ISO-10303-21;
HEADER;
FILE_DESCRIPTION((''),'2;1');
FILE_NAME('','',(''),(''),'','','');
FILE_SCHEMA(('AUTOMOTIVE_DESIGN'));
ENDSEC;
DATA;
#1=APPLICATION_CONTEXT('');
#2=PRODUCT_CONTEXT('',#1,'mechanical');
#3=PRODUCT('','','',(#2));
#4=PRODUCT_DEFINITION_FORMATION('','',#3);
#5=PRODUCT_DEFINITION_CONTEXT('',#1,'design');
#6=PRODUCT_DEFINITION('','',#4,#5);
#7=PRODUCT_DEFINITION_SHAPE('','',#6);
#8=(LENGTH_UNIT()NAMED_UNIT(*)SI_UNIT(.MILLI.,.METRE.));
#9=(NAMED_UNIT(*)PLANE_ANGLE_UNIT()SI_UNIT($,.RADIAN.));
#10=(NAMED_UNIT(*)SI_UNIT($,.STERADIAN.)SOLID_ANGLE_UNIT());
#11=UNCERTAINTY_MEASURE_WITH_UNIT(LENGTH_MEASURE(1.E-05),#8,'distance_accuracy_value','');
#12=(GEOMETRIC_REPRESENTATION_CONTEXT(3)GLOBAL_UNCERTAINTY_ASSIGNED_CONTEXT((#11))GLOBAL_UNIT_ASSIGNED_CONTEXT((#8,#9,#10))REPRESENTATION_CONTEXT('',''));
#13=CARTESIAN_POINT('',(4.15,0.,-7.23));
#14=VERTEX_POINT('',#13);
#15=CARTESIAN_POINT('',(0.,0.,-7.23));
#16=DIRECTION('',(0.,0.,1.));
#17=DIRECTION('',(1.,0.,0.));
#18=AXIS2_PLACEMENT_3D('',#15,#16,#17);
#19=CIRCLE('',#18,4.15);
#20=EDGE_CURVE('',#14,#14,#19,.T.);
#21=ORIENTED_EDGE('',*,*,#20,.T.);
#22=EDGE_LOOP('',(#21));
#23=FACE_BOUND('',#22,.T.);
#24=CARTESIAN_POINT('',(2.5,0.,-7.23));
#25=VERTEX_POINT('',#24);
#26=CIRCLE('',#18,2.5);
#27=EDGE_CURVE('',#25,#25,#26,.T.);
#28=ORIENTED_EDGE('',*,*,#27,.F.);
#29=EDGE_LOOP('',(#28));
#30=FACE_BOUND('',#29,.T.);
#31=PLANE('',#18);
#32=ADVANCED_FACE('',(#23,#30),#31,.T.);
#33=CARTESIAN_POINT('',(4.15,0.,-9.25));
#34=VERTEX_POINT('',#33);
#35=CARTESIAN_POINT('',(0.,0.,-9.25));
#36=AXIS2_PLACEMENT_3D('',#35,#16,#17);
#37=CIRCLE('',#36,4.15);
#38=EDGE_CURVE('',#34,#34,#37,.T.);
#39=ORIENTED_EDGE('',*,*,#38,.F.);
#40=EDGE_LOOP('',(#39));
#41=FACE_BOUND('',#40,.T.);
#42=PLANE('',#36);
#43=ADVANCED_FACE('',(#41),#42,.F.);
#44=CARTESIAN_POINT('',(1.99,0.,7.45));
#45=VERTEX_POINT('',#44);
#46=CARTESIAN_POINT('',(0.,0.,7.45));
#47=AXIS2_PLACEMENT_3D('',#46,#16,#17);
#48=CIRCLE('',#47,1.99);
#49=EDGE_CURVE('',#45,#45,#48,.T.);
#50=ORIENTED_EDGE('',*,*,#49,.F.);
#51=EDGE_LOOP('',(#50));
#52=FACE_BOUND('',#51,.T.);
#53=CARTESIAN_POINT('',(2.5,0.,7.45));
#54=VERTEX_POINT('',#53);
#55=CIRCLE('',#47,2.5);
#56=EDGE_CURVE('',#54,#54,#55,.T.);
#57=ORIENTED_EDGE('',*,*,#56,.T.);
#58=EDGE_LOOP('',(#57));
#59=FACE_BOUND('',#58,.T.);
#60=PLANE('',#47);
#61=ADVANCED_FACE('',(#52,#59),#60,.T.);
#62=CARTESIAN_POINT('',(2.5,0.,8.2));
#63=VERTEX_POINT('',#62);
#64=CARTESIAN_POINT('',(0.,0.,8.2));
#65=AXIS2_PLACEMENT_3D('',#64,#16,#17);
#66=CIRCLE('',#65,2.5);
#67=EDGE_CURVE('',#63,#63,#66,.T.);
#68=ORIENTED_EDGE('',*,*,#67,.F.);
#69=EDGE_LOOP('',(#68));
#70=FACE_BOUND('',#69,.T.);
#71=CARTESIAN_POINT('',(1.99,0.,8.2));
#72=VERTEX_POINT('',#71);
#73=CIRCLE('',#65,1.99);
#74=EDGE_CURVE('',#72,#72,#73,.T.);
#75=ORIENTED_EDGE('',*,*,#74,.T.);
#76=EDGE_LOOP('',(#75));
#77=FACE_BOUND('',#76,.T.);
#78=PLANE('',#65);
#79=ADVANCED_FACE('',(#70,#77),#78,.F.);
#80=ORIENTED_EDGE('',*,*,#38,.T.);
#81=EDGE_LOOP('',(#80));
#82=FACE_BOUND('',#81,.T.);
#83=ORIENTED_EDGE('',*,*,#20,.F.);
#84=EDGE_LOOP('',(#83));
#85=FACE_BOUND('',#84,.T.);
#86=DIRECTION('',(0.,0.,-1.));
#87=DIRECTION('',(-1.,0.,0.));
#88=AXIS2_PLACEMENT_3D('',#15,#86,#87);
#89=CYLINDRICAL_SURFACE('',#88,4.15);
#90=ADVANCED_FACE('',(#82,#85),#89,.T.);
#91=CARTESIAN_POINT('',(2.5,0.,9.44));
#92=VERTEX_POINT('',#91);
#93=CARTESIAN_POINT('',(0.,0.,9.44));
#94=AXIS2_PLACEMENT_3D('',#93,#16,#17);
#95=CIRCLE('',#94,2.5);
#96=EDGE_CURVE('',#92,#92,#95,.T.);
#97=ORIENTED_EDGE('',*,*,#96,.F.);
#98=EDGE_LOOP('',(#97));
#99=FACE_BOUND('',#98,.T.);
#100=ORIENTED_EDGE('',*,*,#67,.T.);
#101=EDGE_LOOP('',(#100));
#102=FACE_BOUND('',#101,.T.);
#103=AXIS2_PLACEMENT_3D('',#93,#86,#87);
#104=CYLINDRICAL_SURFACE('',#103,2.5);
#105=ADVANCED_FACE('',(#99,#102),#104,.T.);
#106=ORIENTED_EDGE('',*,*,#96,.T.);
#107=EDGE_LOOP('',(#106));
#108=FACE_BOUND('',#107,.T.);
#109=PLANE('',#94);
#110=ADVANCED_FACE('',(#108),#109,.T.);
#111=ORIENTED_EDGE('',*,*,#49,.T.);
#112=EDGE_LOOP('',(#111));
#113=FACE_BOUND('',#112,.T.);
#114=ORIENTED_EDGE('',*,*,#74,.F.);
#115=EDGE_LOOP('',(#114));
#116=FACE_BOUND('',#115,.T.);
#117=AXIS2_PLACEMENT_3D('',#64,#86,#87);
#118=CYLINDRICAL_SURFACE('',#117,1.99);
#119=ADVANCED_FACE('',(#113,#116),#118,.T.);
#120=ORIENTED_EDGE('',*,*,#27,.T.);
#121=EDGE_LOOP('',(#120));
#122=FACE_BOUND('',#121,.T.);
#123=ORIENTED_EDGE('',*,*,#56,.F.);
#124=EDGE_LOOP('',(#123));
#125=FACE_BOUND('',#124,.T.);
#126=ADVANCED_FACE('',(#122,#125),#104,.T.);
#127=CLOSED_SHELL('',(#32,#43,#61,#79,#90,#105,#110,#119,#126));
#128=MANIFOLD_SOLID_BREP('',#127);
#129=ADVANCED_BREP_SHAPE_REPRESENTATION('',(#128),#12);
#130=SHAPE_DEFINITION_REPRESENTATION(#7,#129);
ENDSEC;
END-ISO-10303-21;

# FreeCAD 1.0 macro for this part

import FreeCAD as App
import Part
import Sketcher
Q = App.Units.Quantity

doc = App.newDocument("Part")
body = doc.addObject("PartDesign::Body", "Body")

# Sketch on XY plane
sketch1 = doc.addObject("Sketcher::SketchObject", "Sketch")
body.addObject(sketch1)
sketch1.AttachmentSupport = (doc.XY_Plane, [""])
sketch1.MapMode = "FlatFace"
sketch1.AttachmentOffset = App.Placement(App.Vector(0, 0, -7.23), App.Rotation())
sketch1.addGeometry(Part.Circle(App.Vector(0, 0, 0), App.Vector(0, 0, 1), 2.5), False)
sketch1.addConstraint([
    Sketcher.Constraint("Coincident", 0, 3, -1, 1),
    Sketcher.Constraint("Diameter", 0, Q("5 mm")),
])
pad1 = doc.addObject("PartDesign::Pad", "Pad")
body.addObject(pad1)
pad1.Profile = sketch1
pad1.Length = 16.67

# Sketch on XY plane
sketch2 = doc.addObject("Sketcher::SketchObject", "Sketch001")
body.addObject(sketch2)
sketch2.AttachmentSupport = (doc.XY_Plane, [""])
sketch2.MapMode = "FlatFace"
sketch2.AttachmentOffset = App.Placement(App.Vector(0, 0, -9.25), App.Rotation())
sketch2.addGeometry(Part.Circle(App.Vector(0, 0, 0), App.Vector(0, 0, 1), 4.2), False)
sketch2.addConstraint([
    Sketcher.Constraint("Coincident", 0, 3, -1, 1),
    Sketcher.Constraint("Diameter", 0, Q("8.3 mm")),
])
pad2 = doc.addObject("PartDesign::Pad", "Pad001")
body.addObject(pad2)
pad2.Profile = sketch2
pad2.Length = 2.02

# Sketch on XY plane
sketch3 = doc.addObject("Sketcher::SketchObject", "Sketch002")
body.addObject(sketch3)
sketch3.AttachmentSupport = (doc.XY_Plane, [""])
sketch3.MapMode = "FlatFace"
sketch3.AttachmentOffset = App.Placement(App.Vector(0, 0, 7.45), App.Rotation())
sketch3.addGeometry([
    Part.Circle(App.Vector(0, 0, 0), App.Vector(0, 0, 1), 2.6),
    Part.Circle(App.Vector(0, 0, 0), App.Vector(0, 0, 1), 2),
], False)
sketch3.addConstraint([
    Sketcher.Constraint("Coincident", 0, 3, -1, 1),
    Sketcher.Constraint("Coincident", 1, 3, -1, 1),
    Sketcher.Constraint("Diameter", 0, Q("5.2 mm")),
    Sketcher.Constraint("Diameter", 1, Q("3.98 mm")),
])
pocket1 = doc.addObject("PartDesign::Pocket", "Pocket")
body.addObject(pocket1)
pocket1.Profile = sketch3
pocket1.Length = 0.75
pocket1.Reversed = True

doc.recompute()
